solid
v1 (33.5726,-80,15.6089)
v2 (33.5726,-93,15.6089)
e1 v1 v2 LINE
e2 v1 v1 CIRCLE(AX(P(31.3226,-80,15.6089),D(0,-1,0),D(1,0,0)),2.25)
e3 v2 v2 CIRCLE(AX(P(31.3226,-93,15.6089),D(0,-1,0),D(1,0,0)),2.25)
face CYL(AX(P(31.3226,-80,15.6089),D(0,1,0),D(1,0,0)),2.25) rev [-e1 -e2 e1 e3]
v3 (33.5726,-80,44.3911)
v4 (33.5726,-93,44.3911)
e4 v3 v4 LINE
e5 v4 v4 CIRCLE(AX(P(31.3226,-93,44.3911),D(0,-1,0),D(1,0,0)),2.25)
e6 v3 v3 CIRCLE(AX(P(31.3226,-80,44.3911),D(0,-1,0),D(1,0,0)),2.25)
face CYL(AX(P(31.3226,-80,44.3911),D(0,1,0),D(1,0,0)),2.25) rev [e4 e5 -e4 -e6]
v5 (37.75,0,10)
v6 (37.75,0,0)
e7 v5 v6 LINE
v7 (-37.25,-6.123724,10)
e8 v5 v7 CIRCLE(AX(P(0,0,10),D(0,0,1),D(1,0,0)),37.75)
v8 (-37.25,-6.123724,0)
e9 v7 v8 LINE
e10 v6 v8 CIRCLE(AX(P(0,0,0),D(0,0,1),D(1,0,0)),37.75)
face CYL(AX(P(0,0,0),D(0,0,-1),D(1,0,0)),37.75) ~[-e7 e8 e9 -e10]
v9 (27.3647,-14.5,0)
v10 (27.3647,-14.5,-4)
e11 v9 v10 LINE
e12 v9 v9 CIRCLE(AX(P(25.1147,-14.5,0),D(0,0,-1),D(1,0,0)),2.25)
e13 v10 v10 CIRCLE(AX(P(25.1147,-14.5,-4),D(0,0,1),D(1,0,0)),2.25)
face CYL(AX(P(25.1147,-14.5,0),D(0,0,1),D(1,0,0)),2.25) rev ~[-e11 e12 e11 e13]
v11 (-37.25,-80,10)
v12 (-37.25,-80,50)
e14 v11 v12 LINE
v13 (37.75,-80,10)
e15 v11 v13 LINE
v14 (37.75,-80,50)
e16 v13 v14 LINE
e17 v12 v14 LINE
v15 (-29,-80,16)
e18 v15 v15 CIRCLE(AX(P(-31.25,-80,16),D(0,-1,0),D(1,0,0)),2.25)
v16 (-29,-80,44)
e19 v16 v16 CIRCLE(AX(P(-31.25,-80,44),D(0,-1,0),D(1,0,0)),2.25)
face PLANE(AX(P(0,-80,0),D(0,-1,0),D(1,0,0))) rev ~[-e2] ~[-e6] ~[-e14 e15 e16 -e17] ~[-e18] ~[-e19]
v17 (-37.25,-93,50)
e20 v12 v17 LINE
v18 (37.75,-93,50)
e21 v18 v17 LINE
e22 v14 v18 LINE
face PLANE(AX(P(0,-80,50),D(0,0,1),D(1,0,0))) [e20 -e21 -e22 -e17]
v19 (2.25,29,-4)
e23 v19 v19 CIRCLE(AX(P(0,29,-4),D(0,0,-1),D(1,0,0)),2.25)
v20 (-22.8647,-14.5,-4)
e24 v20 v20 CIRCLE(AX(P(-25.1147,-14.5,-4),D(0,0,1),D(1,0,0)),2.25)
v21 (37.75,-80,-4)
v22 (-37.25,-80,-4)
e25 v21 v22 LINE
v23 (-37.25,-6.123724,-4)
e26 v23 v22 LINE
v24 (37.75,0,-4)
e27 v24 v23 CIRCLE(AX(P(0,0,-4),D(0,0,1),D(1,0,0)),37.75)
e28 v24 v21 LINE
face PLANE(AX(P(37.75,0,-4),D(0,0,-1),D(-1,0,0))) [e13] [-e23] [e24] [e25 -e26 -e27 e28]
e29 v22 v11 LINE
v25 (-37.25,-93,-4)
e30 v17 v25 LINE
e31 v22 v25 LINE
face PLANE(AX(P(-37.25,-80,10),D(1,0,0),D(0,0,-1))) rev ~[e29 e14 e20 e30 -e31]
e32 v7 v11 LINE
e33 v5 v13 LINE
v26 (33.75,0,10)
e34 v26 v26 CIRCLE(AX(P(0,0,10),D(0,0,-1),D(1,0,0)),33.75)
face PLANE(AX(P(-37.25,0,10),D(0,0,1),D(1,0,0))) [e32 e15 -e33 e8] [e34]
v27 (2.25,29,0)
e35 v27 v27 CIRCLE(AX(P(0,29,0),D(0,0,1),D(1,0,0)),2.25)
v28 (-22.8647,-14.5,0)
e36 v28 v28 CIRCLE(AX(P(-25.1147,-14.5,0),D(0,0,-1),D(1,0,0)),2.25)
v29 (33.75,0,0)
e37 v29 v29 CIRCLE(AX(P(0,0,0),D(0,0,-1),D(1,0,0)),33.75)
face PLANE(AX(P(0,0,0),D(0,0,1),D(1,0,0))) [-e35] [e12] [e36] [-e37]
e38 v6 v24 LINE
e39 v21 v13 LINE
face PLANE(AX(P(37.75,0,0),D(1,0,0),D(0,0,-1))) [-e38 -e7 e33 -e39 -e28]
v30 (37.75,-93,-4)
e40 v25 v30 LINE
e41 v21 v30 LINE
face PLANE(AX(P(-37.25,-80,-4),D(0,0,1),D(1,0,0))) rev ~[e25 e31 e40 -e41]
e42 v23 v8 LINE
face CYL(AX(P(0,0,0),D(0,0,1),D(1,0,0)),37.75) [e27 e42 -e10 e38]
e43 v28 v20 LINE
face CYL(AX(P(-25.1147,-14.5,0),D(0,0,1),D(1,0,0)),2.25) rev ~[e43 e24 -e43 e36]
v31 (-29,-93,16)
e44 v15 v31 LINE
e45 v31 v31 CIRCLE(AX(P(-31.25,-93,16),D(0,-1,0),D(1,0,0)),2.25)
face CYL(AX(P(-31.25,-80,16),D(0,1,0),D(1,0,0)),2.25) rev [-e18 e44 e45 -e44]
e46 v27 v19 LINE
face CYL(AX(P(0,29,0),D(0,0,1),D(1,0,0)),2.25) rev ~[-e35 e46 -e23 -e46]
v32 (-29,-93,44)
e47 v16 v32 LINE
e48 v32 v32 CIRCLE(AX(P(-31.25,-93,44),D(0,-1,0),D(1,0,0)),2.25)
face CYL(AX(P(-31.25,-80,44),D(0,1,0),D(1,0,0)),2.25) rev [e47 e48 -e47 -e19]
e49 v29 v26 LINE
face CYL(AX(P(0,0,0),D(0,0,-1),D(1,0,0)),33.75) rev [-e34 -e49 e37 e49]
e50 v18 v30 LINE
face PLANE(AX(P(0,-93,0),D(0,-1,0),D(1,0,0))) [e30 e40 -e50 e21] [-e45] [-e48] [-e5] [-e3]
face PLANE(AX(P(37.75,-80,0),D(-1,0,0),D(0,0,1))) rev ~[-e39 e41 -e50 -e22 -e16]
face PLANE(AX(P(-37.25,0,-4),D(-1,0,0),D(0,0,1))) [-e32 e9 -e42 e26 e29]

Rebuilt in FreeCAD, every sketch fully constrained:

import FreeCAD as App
import Part
import Sketcher
from FreeCAD import Vector
Q = App.Units.Quantity


def add_polygon(sketch, points):
    """Adds a closed chain of lines whose ends are joined by coincident constraints."""
    first, n = sketch.GeometryCount, len(points)
    for a, b in zip(points, points[1:] + points[:1]):
        sketch.addGeometry(Part.LineSegment(App.Vector(*a, 0), App.Vector(*b, 0)), False)
    for i in range(n):
        sketch.addConstraint(Sketcher.Constraint("Coincident", first + i, 2, first + (i + 1) % n, 1))

doc = App.newDocument("Part")
body = doc.addObject("PartDesign::Body", "Body")

sketch1 = body.newObject("Sketcher::SketchObject", "Sketch")
sketch1.AttachmentSupport = (doc.getObject("XZ_Plane"), [""])
sketch1.MapMode = "FlatFace"
add_polygon(sketch1, [(-37, -4), (-37, 10), (38, 10), (38, -4)])
sketch1.addConstraint([
    Sketcher.Constraint("Vertical", 0),
    Sketcher.Constraint("Horizontal", 1),
    Sketcher.Constraint("Vertical", 2),
    Sketcher.Constraint("Horizontal", 3),
    Sketcher.Constraint("DistanceX", 1, 1, 1, 2, Q("75 mm")),
    Sketcher.Constraint("DistanceY", -1, 1, 0, 2, Q("10 mm")),
    Sketcher.Constraint("DistanceY", 2, 2, -1, 1, Q("4 mm")),
    Sketcher.Constraint("DistanceX", 0, 2, -1, 1, Q("37.25 mm")),
])
pad1 = body.newObject("PartDesign::Pad", "Pad")
pad1.Profile = sketch1
pad1.Length = 80

sketch2 = body.newObject("Sketcher::SketchObject", "Sketch001")
sketch2.AttachmentSupport = (doc.getObject("XY_Plane"), [""])
sketch2.MapMode = "FlatFace"
sketch2.addGeometry(Part.Circle(Vector(0, 0, 0), Vector(0, 0, 1), 34), False)
sketch2.addConstraint([
    Sketcher.Constraint("Coincident", 0, 3, -1, 1),
    Sketcher.Constraint("Diameter", 0, Q("67.5 mm")),
])
pocket1 = body.newObject("PartDesign::Pocket", "Pocket")
pocket1.Profile = sketch2
pocket1.Length = 10
pocket1.Reversed = True

sketch3 = body.newObject("Sketcher::SketchObject", "Sketch002")
sketch3.AttachmentSupport = (doc.getObject("XY_Plane"), [""])
sketch3.MapMode = "FlatFace"
sketch3.addGeometry([
    Part.Circle(Vector(0, 29, 0), Vector(0, 0, 1), 2.2),
    Part.Circle(Vector(25.1, -14.5, 0), Vector(0, 0, 1), 2.2),
    Part.Circle(Vector(-25.1, -14.5, 0), Vector(0, 0, 1), 2.2),
], False)
sketch3.addConstraint([
    Sketcher.Constraint("Equal", 0, 1),
    Sketcher.Constraint("Equal", 1, 2),
    Sketcher.Constraint("Symmetric", 1, 3, 2, 3, -2),
    Sketcher.Constraint("PointOnObject", 0, 3, -2),
    Sketcher.Constraint("Diameter", 0, Q("4.5 mm")),
    Sketcher.Constraint("DistanceY", -1, 1, 0, 3, Q("29 mm")),
    Sketcher.Constraint("DistanceY", 1, 3, -1, 1, Q("14.5 mm")),
    Sketcher.Constraint("DistanceX", -1, 1, 1, 3, Q("25.1147 mm")),
])
pocket2 = body.newObject("PartDesign::Pocket", "Pocket001")
pocket2.Profile = sketch3
pocket2.Length = 10

sketch4 = body.newObject("Sketcher::SketchObject", "Sketch003")
sketch4.AttachmentSupport = (doc.getObject("XY_Plane"), [""])
sketch4.MapMode = "FlatFace"
sketch4.addGeometry([
    Part.Circle(Vector(0, 0, 0), Vector(0, 0, 1), 37.8),
    Part.Circle(Vector(0, 29, 0), Vector(0, 0, 1), 2.2),
    Part.Circle(Vector(-25.1, -14.5, 0), Vector(0, 0, 1), 2.2),
    Part.Circle(Vector(25.1, -14.5, 0), Vector(0, 0, 1), 2.2),
], False)
sketch4.addConstraint([
    Sketcher.Constraint("Coincident", 0, 3, -1, 1),
    Sketcher.Constraint("Equal", 1, 2),
    Sketcher.Constraint("Equal", 2, 3),
    Sketcher.Constraint("Symmetric", 2, 3, 3, 3, -2),
    Sketcher.Constraint("PointOnObject", 1, 3, -2),
    Sketcher.Constraint("Diameter", 1, Q("4.5 mm")),
    Sketcher.Constraint("Diameter", 0, Q("75.5 mm")),
    Sketcher.Constraint("DistanceY", -1, 1, 1, 3, Q("29 mm")),
    Sketcher.Constraint("DistanceY", 2, 3, -1, 1, Q("14.5 mm")),
    Sketcher.Constraint("DistanceX", 2, 3, -1, 1, Q("25.1147 mm")),
])
pad2 = body.newObject("PartDesign::Pad", "Pad001")
pad2.Profile = sketch4
pad2.Length = 4
pad2.Reversed = True

sketch5 = body.newObject("Sketcher::SketchObject", "Sketch004")
sketch5.AttachmentSupport = (doc.getObject("XY_Plane"), [""])
sketch5.MapMode = "FlatFace"
sketch5.addGeometry([
    Part.Circle(Vector(0, 0, 0), Vector(0, 0, 1), 38),
    Part.Circle(Vector(0, 0, 0), Vector(0, 0, 1), 34),
], False)
sketch5.addConstraint([
    Sketcher.Constraint("Coincident", 0, 3, -1, 1),
    Sketcher.Constraint("Coincident", 1, 3, -1, 1),
    Sketcher.Constraint("Diameter", 1, Q("67.5 mm")),
    Sketcher.Constraint("Diameter", 0, Q("75.5 mm")),
])
pad3 = body.newObject("PartDesign::Pad", "Pad002")
pad3.Profile = sketch5
pad3.Length = 10

sketch6 = body.newObject("Sketcher::SketchObject", "Sketch005")
sketch6.AttachmentSupport = (doc.getObject("XZ_Plane"), [""])
sketch6.MapMode = "FlatFace"
sketch6.AttachmentOffset = App.Placement(Vector(0, 0, 80), App.Rotation())
add_polygon(sketch6, [(37.8, 50), (-37.2, 50), (-37.2, -4), (37.8, -4)])
sketch6.addGeometry(Part.Circle(Vector(-31.2, 16, 0), Vector(0, 0, 1), 2.2), False)
sketch6.addGeometry(Part.Circle(Vector(31.3, 15.6, 0), Vector(0, 0, 1), 2.2), False)
sketch6.addGeometry(Part.Circle(Vector(-31.2, 44, 0), Vector(0, 0, 1), 2.2), False)
sketch6.addGeometry(Part.Circle(Vector(31.3, 44.4, 0), Vector(0, 0, 1), 2.2), False)
sketch6.addConstraint([
    Sketcher.Constraint("Horizontal", 0),
    Sketcher.Constraint("Vertical", 1),
    Sketcher.Constraint("Horizontal", 2),
    Sketcher.Constraint("Vertical", 3),
    Sketcher.Constraint("Equal", 4, 5),
    Sketcher.Constraint("Equal", 5, 6),
    Sketcher.Constraint("Equal", 6, 7),
    Sketcher.Constraint("Vertical", 4, 3, 6, 3),
    Sketcher.Constraint("Vertical", 5, 3, 7, 3),
    Sketcher.Constraint("Diameter", 4, Q("4.5 mm")),
    Sketcher.Constraint("DistanceY", -1, 1, 0, 2, Q("50 mm")),
    Sketcher.Constraint("DistanceX", 0, 2, 6, 3, Q("6 mm")),
    Sketcher.Constraint("DistanceY", 6, 3, 0, 2, Q("6 mm")),
    Sketcher.Constraint("DistanceX", 0, 2, 0, 1, Q("75 mm")),
    Sketcher.Constraint("DistanceY", 1, 2, 1, 1, Q("54 mm")),
    Sketcher.Constraint("DistanceY", -1, 1, 4, 3, Q("16 mm")),
    Sketcher.Constraint("DistanceX", 4, 3, -1, 1, Q("31.25 mm")),
    Sketcher.Constraint("DistanceY", -1, 1, 5, 3, Q("15.609 mm")),
    Sketcher.Constraint("DistanceY", -1, 1, 7, 3, Q("44.391 mm")),
    Sketcher.Constraint("DistanceX", -1, 1, 5, 3, Q("31.3226 mm")),
])
pad4 = body.newObject("PartDesign::Pad", "Pad003")
pad4.Profile = sketch6
pad4.Length = 13

doc.recompute()
